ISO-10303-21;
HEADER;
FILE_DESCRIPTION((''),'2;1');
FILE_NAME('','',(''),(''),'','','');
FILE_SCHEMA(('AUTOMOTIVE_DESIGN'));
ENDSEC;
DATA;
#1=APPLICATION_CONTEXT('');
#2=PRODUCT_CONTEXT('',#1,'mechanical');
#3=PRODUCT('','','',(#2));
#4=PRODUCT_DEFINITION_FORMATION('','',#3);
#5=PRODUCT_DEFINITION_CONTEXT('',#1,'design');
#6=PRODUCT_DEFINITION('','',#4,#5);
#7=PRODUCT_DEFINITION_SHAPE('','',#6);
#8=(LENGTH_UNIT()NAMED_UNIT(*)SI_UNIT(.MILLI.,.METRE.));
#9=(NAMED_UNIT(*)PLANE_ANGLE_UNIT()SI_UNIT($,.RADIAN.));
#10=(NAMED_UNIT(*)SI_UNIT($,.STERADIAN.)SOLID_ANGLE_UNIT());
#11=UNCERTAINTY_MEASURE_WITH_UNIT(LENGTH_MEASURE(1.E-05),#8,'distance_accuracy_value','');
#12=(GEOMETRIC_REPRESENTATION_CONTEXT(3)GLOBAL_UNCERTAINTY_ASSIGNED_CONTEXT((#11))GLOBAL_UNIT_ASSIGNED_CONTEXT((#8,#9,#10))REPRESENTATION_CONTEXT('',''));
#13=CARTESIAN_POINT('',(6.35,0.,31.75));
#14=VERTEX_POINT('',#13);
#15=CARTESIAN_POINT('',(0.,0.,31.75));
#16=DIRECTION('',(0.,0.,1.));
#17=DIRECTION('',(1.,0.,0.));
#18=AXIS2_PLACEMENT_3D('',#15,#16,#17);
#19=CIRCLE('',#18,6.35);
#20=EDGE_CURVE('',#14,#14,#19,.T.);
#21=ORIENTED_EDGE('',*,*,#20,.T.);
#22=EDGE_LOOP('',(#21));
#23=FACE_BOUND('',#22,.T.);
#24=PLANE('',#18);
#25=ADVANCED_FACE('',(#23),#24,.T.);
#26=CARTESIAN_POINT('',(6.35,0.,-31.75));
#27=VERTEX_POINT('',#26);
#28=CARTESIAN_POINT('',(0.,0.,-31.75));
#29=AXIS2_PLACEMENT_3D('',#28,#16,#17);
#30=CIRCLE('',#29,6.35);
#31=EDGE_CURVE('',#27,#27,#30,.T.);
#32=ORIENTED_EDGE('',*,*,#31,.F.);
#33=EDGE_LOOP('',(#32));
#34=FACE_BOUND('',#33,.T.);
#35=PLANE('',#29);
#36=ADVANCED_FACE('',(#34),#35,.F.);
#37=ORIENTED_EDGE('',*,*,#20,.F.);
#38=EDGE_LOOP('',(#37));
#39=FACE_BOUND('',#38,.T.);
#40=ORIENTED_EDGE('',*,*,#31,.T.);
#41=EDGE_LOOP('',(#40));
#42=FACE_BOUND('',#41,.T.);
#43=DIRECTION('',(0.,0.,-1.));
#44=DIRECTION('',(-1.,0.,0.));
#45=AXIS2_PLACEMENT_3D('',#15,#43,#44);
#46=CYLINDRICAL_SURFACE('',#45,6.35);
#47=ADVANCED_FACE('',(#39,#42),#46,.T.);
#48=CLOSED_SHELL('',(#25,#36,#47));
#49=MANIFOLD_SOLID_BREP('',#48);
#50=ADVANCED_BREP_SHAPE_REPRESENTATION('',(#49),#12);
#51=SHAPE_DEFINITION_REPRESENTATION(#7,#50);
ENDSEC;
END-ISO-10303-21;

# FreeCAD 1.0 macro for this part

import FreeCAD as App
import Part
import Sketcher
from FreeCAD import Vector
Q = App.Units.Quantity

doc = App.newDocument("Part")
body = doc.addObject("PartDesign::Body", "Body")

# Sketch on XY plane
sketch1 = doc.addObject("Sketcher::SketchObject", "Sketch")
body.addObject(sketch1)
sketch1.AttachmentSupport = (doc.XY_Plane, [""])
sketch1.MapMode = "FlatFace"
sketch1.addGeometry(Part.Circle(Vector(0, 0, 0), Vector(0, 0, 1), 6), False)
sketch1.addConstraint(Sketcher.Constraint("Coincident", 0, 3, -1, 1))
sketch1.addConstraint(Sketcher.Constraint("Diameter", 0, Q("0.5 in")))
pad1 = doc.addObject("PartDesign::Pad", "Pad")
body.addObject(pad1)
pad1.Profile = sketch1
pad1.Length = Q("2.5 in")
pad1.Midplane = True

doc.recompute()
